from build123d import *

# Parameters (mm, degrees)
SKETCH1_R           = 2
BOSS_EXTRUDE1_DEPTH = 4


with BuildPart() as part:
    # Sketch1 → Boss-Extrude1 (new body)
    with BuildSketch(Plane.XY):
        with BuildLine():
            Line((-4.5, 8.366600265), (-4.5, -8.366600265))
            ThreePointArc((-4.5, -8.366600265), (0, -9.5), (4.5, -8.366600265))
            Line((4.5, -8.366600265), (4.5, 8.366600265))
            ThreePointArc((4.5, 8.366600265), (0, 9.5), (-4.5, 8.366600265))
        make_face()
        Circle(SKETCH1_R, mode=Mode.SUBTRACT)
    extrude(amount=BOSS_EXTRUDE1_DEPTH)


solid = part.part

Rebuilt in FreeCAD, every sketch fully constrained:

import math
import FreeCAD as App
import Part
import Sketcher
Q = App.Units.Quantity

doc = App.newDocument("Part")
body = doc.addObject("PartDesign::Body", "Body")

# Sketch on XY plane
sketch1 = body.newObject("Sketcher::SketchObject", "Sketch")
sketch1.AttachmentSupport = (doc.getObject("XY_Plane"), [""])
sketch1.MapMode = "FlatFace"
sketch1.addGeometry([
    Part.LineSegment(App.Vector(-4.5, 8.4, 0), App.Vector(-4.5, -8.4, 0)),  # 0
    Part.ArcOfCircle(Part.Circle(App.Vector(0, 0, 0), App.Vector(0, 0, 1), 9.5), math.radians(-118), math.radians(-62)),  # 1
    Part.LineSegment(App.Vector(4.5, -8.4, 0), App.Vector(4.5, 8.4, 0)),  # 2
    Part.ArcOfCircle(Part.Circle(App.Vector(0, 0, 0), App.Vector(0, 0, 1), 9.5), math.radians(62), math.radians(118)),  # 3
    Part.Circle(App.Vector(0, 0, 0), App.Vector(0, 0, 1), 2),  # 4
], False)
sketch1.addConstraint([
    Sketcher.Constraint("Coincident", 0, 2, 1, 1),
    Sketcher.Constraint("Coincident", 1, 2, 2, 1),
    Sketcher.Constraint("Coincident", 2, 2, 3, 1),
    Sketcher.Constraint("Coincident", 3, 2, 0, 1),
    Sketcher.Constraint("Vertical", 0),
    Sketcher.Constraint("Vertical", 2),
    Sketcher.Constraint("Coincident", 1, 3, -1, 1),
    Sketcher.Constraint("Coincident", 3, 3, -1, 1),
    Sketcher.Constraint("Coincident", 4, 3, -1, 1),
    Sketcher.Constraint("Equal", 1, 3),
    Sketcher.Constraint("Horizontal", 0, 2, 1, 2),
    Sketcher.Constraint("Diameter", 4, Q("4 mm")),
    Sketcher.Constraint("Radius", 1, Q("9.5 mm")),
    Sketcher.Constraint("DistanceX", 0, 2, 1, 2, Q("9 mm")),
])
pad1 = body.newObject("PartDesign::Pad", "Pad")
pad1.Profile = sketch1
pad1.Length = 4

doc.recompute()
